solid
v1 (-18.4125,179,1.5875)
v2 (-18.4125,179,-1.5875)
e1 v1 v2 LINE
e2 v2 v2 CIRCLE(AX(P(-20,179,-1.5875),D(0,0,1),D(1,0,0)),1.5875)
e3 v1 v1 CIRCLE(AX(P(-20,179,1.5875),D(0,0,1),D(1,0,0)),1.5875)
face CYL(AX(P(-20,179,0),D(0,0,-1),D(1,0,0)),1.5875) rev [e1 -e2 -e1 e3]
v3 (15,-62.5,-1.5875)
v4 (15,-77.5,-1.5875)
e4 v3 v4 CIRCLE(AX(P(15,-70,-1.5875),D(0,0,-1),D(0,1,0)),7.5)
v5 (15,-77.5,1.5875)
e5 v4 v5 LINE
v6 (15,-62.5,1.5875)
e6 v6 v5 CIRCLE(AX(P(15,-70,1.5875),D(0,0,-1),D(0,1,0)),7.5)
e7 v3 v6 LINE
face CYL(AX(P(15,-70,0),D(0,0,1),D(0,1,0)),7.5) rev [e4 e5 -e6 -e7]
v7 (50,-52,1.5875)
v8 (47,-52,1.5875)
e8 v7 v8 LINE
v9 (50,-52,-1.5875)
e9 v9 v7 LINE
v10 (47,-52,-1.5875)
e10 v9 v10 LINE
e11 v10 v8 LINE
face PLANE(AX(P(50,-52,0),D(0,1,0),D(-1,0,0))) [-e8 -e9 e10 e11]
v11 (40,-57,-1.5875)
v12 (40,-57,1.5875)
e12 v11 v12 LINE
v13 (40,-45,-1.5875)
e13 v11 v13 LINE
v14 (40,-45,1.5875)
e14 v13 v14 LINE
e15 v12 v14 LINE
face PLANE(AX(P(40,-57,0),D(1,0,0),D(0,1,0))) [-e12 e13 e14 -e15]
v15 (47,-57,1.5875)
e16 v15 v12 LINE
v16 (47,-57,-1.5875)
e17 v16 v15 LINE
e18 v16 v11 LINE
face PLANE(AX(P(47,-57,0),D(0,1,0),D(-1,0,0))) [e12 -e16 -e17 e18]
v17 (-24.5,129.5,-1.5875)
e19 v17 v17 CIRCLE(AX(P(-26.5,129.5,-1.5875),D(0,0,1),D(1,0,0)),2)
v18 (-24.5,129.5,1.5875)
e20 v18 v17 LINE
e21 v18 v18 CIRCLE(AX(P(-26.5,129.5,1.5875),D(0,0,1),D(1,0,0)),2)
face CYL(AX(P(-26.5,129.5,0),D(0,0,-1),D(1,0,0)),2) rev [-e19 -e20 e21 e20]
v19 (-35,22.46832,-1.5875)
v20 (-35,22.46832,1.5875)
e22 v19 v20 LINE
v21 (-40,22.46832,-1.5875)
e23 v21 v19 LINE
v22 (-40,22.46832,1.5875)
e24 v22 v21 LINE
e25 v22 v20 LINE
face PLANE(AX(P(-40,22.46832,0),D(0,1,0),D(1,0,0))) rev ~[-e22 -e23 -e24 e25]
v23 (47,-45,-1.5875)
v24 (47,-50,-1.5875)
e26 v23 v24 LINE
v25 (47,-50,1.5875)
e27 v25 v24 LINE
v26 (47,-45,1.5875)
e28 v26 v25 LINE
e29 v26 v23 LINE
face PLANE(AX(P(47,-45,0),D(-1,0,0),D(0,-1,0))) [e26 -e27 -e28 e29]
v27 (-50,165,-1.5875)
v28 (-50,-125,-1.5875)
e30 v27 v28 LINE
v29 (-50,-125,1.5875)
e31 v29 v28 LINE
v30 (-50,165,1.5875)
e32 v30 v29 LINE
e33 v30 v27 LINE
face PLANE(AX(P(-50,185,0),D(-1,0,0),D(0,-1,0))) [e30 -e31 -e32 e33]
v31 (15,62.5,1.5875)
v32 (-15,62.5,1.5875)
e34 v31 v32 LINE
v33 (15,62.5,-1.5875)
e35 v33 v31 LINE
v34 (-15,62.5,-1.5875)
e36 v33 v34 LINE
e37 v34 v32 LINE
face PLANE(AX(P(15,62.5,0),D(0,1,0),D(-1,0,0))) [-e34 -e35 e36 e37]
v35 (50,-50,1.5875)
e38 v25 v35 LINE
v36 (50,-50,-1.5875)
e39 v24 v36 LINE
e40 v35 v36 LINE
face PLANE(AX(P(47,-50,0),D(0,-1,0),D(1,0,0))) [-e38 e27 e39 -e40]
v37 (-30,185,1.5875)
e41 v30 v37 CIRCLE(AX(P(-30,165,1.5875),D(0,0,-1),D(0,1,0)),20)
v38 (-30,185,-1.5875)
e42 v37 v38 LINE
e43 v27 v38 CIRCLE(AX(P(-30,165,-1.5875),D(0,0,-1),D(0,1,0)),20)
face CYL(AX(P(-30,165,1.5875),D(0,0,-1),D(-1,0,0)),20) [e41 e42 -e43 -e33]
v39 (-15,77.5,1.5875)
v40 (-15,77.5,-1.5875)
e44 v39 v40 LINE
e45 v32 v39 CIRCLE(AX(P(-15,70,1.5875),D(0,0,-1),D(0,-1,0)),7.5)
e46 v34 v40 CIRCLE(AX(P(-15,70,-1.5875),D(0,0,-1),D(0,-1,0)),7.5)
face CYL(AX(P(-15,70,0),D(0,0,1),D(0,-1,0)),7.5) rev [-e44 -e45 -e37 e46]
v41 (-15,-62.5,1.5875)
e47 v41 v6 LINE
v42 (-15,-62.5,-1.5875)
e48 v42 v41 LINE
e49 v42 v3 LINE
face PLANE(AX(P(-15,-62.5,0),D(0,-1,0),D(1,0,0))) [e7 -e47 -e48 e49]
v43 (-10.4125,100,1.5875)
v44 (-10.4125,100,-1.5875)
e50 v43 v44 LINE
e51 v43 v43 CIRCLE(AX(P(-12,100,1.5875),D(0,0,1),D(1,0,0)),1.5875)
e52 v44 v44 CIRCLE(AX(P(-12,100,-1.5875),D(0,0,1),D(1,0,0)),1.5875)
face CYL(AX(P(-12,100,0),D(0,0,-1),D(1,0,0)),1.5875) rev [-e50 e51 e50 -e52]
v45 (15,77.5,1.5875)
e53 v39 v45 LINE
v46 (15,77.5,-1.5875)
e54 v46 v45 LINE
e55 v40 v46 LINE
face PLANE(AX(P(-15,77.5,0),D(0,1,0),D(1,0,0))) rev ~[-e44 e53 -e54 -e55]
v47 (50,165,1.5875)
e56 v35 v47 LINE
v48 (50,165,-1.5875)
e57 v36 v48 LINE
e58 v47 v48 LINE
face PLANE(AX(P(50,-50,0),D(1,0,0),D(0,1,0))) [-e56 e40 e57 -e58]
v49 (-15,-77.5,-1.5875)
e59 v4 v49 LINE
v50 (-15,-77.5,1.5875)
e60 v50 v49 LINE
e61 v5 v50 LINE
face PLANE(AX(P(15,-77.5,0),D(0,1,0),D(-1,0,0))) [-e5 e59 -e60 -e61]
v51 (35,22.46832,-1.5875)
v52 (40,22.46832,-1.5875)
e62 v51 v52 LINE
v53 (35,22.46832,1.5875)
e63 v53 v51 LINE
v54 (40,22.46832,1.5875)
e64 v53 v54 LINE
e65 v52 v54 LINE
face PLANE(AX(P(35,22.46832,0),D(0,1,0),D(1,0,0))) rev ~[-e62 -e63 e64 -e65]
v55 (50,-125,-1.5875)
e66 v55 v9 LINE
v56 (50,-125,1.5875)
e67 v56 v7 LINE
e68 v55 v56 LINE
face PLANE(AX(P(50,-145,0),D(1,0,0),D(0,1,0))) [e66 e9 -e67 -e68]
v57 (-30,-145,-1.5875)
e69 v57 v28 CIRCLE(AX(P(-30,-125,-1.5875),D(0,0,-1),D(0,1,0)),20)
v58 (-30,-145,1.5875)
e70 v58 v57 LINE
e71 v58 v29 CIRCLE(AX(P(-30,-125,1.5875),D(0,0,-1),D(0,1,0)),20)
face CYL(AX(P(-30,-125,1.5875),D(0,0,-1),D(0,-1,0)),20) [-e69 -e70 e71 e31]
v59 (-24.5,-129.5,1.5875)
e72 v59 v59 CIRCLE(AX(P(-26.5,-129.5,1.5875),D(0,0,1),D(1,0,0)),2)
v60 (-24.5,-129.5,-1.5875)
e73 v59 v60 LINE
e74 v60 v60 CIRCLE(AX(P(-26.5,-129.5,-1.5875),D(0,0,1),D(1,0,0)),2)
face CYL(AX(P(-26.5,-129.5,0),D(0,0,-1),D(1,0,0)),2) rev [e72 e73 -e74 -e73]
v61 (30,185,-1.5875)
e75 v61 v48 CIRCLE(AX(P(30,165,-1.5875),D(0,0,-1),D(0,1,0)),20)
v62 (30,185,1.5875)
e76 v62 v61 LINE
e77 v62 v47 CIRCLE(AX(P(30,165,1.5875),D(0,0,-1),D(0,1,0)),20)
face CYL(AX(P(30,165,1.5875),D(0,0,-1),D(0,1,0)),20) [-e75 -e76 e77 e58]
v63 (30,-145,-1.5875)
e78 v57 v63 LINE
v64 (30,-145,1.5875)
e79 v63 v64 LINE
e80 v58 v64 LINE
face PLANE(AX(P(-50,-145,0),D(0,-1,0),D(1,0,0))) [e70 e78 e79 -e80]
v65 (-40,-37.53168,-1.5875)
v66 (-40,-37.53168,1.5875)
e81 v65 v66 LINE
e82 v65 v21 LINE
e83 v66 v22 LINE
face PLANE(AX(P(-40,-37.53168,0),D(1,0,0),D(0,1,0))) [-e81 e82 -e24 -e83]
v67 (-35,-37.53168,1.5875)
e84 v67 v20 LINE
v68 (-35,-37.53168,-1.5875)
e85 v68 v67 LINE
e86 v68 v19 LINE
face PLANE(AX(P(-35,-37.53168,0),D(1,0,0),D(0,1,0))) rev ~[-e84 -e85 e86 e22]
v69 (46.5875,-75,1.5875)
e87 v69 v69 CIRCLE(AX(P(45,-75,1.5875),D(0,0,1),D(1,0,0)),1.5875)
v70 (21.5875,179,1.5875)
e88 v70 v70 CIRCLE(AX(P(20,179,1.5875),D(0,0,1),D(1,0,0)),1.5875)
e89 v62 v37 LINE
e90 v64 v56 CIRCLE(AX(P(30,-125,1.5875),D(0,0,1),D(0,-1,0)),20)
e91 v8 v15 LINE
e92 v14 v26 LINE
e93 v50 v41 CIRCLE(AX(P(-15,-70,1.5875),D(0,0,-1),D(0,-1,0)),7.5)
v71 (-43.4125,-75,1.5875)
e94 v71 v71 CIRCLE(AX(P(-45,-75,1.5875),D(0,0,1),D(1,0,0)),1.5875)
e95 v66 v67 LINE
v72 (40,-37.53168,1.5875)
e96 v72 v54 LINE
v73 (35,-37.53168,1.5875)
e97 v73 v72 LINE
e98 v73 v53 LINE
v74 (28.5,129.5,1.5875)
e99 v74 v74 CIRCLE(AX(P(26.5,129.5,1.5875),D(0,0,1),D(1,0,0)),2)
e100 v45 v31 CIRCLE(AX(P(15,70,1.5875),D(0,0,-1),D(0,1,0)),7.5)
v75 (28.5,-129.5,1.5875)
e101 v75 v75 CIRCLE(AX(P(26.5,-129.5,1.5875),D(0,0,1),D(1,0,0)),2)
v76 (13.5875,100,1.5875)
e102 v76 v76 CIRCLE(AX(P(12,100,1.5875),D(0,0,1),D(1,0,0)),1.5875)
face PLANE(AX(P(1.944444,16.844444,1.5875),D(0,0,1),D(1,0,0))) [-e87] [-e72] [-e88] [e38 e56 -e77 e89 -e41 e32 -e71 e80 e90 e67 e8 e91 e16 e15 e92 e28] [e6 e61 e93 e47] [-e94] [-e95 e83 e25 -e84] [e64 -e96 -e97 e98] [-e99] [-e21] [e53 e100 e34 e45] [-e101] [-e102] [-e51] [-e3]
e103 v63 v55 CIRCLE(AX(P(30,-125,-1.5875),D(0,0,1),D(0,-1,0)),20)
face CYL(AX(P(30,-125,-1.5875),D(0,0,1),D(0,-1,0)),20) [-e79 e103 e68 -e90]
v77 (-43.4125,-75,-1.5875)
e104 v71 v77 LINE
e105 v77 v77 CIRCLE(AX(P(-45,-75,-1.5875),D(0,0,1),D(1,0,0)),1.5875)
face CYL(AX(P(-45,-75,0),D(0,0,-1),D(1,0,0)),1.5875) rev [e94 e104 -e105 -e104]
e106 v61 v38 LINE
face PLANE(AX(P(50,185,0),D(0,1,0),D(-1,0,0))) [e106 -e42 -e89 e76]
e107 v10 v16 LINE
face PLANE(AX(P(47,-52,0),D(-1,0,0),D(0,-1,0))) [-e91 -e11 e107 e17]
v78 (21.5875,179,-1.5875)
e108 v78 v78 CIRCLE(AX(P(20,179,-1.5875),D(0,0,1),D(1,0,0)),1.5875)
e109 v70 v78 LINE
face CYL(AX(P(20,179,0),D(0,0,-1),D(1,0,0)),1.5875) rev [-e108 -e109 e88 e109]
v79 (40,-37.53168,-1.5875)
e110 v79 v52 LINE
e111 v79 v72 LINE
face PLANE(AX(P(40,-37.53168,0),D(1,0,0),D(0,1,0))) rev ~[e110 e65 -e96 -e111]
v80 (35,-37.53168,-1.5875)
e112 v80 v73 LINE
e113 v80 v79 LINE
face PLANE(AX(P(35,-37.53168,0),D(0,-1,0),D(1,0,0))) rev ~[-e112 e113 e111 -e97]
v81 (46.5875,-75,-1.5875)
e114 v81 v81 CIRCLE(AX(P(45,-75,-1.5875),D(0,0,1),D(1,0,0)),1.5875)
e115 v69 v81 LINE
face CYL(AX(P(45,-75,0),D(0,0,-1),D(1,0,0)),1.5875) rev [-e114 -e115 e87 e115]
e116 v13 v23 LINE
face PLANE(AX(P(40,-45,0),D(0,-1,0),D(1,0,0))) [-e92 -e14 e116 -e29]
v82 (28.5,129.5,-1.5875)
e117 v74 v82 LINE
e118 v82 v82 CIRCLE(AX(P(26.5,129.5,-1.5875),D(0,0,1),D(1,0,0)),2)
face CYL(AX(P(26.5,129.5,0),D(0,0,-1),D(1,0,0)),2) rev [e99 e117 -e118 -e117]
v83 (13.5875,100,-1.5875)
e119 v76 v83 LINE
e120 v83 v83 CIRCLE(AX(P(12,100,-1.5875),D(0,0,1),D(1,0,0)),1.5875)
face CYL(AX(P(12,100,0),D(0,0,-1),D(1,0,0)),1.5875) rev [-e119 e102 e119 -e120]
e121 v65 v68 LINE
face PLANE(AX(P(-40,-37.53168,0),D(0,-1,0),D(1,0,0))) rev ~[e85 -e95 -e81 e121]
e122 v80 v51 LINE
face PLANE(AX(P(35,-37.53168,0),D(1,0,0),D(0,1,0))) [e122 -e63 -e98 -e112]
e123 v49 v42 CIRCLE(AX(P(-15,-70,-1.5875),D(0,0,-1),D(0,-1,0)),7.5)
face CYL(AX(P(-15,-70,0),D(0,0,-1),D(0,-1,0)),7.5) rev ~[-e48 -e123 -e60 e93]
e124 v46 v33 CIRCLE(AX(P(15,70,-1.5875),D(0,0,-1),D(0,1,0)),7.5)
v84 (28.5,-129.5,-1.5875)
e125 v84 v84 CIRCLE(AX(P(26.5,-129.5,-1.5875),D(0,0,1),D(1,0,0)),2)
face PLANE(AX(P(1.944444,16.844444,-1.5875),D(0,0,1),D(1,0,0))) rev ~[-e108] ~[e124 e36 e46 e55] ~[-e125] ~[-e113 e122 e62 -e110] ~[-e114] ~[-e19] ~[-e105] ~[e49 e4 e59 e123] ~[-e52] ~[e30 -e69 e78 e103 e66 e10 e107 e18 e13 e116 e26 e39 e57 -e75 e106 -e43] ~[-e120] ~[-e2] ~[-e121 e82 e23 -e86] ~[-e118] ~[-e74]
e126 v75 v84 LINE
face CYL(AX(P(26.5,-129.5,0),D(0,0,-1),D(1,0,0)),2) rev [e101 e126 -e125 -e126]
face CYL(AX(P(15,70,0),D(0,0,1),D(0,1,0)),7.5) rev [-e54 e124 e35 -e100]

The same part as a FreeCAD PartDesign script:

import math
import FreeCAD as App
import Part
import Sketcher
from FreeCAD import Vector


def edges_at(feature, points):
    """Names of the edges that pass closest to the given points."""
    edges = feature.Shape.Edges
    near = lambda p: min(range(len(edges)), key=lambda i: edges[i].distToShape(Part.Vertex(*p))[0])
    return sorted({f"Edge{near(p) + 1}" for p in points})


def add_polygon(sketch, points):
    """Adds a closed chain of lines whose ends are joined by coincident constraints."""
    first, n = sketch.GeometryCount, len(points)
    for a, b in zip(points, points[1:] + points[:1]):
        sketch.addGeometry(Part.LineSegment(App.Vector(*a, 0), App.Vector(*b, 0)), False)
    for i in range(n):
        sketch.addConstraint(Sketcher.Constraint("Coincident", first + i, 2, first + (i + 1) % n, 1))

doc = App.newDocument("Part")
params = doc.addObject("Spreadsheet::Sheet", "Params")
for row, (alias, value) in enumerate([
    ("sketch1_diameter", "4 mm"),
    ("sketch1_radius", "7.5 mm"),
    ("sketch1_width", "100 mm"),
    ("sketch1_width2", "3 mm"),
    ("sketch1_width3", "7 mm"),
    ("pad1_length", "3.175 mm"),
    ("fillet_radius", "20 mm"),
], start=1):
    params.set(f"A{row}", alias)
    params.set(f"B{row}", "=" + value)
    params.setAlias(f"B{row}", alias)

body = doc.addObject("PartDesign::Body", "Body")

# Sketch on XY plane
sketch1 = doc.addObject("Sketcher::SketchObject", "Sketch")
body.addObject(sketch1)
sketch1.AttachmentSupport = (doc.XY_Plane, [""])
sketch1.MapMode = "FlatFace"
add_polygon(sketch1, [(-50, -145), (50, -145), (50, -52), (47, -52), (47, -57), (40, -57), (40, -45), (47, -45), (47, -50), (50, -50), (50, 185), (-50, 185)])  # lines 0-11
sketch1.addGeometry(Part.Circle(Vector(-26.5, -129.5, 0), Vector(0, 0, 1), 2), False)  # 12
sketch1.addGeometry(Part.Circle(Vector(-45, -75, 0), Vector(0, 0, 1), 1.6), False)  # 13
add_polygon(sketch1, [(-35, -37.5), (-40, -37.5), (-40, 22.5), (-35, 22.5)])  # lines 14-17
sketch1.addGeometry(Part.ArcOfCircle(Part.Circle(Vector(15, -70, 0), Vector(0, 0, 1), 7.5), math.radians(-90), math.radians(90)), False)  # 18
sketch1.addGeometry(Part.LineSegment(Vector(15, -77.5, 0), Vector(-15, -77.5, 0)), False)  # 19
sketch1.addGeometry(Part.ArcOfCircle(Part.Circle(Vector(-15, -70, 0), Vector(0, 0, 1), 7.5), math.radians(90), math.radians(270)), False)  # 20
sketch1.addGeometry(Part.LineSegment(Vector(-15, -62.5, 0), Vector(15, -62.5, 0)), False)  # 21
sketch1.addGeometry(Part.Circle(Vector(26.5, -129.5, 0), Vector(0, 0, 1), 2), False)  # 22
sketch1.addGeometry(Part.Circle(Vector(45, -75, 0), Vector(0, 0, 1), 1.6), False)  # 23
add_polygon(sketch1, [(40, -37.5), (35, -37.5), (35, 22.5), (40, 22.5)])  # lines 24-27
sketch1.addGeometry(Part.Circle(Vector(-12, 100, 0), Vector(0, 0, 1), 1.6), False)  # 28
sketch1.addGeometry(Part.Circle(Vector(-26.5, 129.5, 0), Vector(0, 0, 1), 2), False)  # 29
sketch1.addGeometry(Part.Circle(Vector(-20, 179, 0), Vector(0, 0, 1), 1.6), False)  # 30
sketch1.addGeometry(Part.LineSegment(Vector(15, 62.5, 0), Vector(-15, 62.5, 0)), False)  # 31
sketch1.addGeometry(Part.ArcOfCircle(Part.Circle(Vector(-15, 70, 0), Vector(0, 0, 1), 7.5), math.radians(90), math.radians(270)), False)  # 32
sketch1.addGeometry(Part.LineSegment(Vector(-15, 77.5, 0), Vector(15, 77.5, 0)), False)  # 33
sketch1.addGeometry(Part.ArcOfCircle(Part.Circle(Vector(15, 70, 0), Vector(0, 0, 1), 7.5), math.radians(-90), math.radians(90)), False)  # 34
sketch1.addGeometry(Part.Circle(Vector(12, 100, 0), Vector(0, 0, 1), 1.6), False)  # 35
sketch1.addGeometry(Part.Circle(Vector(20, 179, 0), Vector(0, 0, 1), 1.6), False)  # 36
sketch1.addGeometry(Part.Circle(Vector(26.5, 129.5, 0), Vector(0, 0, 1), 2), False)  # 37
sketch1.addConstraint([
    Sketcher.Constraint("Tangent", 18, 1, 19, 1),
    Sketcher.Constraint("Tangent", 19, 2, 20, 2),
    Sketcher.Constraint("Tangent", 20, 1, 21, 1),
    Sketcher.Constraint("Tangent", 21, 2, 18, 2),
    Sketcher.Constraint("Tangent", 31, 2, 32, 2),
    Sketcher.Constraint("Tangent", 32, 1, 33, 1),
    Sketcher.Constraint("Tangent", 33, 2, 34, 2),
    Sketcher.Constraint("Tangent", 34, 1, 31, 1),
    Sketcher.Constraint("Horizontal", 0),
    Sketcher.Constraint("Vertical", 1),
    Sketcher.Constraint("Horizontal", 2),
    Sketcher.Constraint("Vertical", 3),
    Sketcher.Constraint("Horizontal", 4),
    Sketcher.Constraint("Vertical", 5),
    Sketcher.Constraint("Horizontal", 6),
    Sketcher.Constraint("Vertical", 7),
    Sketcher.Constraint("Horizontal", 8),
    Sketcher.Constraint("Vertical", 9),
    Sketcher.Constraint("Horizontal", 10),
    Sketcher.Constraint("Vertical", 11),
    Sketcher.Constraint("Horizontal", 14),
    Sketcher.Constraint("Vertical", 15),
    Sketcher.Constraint("Horizontal", 16),
    Sketcher.Constraint("Vertical", 17),
    Sketcher.Constraint("Horizontal", 19),
    Sketcher.Constraint("Horizontal", 21),
    Sketcher.Constraint("Horizontal", 24),
    Sketcher.Constraint("Vertical", 25),
    Sketcher.Constraint("Horizontal", 26),
    Sketcher.Constraint("Vertical", 27),
    Sketcher.Constraint("Horizontal", 31),
    Sketcher.Constraint("Horizontal", 33),
    Sketcher.Constraint("Equal", 12, 22),
    Sketcher.Constraint("Equal", 13, 23),
    Sketcher.Constraint("Equal", 23, 28),
    Sketcher.Constraint("Equal", 22, 29),
    Sketcher.Constraint("Equal", 28, 30),
    Sketcher.Constraint("Equal", 20, 32),
    Sketcher.Constraint("Equal", 30, 35),
    Sketcher.Constraint("Equal", 35, 36),
    Sketcher.Constraint("Equal", 29, 37),
    Sketcher.Constraint("Symmetric", 22, 3, 29, 3, -1, 1),
    Sketcher.Constraint("Symmetric", 18, 3, 32, 3, -1, 1),
    Sketcher.Constraint("Symmetric", 12, 3, 37, 3, -1, 1),
    Sketcher.Constraint("Symmetric", 12, 3, 22, 3, -2),
    Sketcher.Constraint("Symmetric", 13, 3, 23, 3, -2),
    Sketcher.Constraint("Symmetric", 28, 3, 35, 3, -2),
    Sketcher.Constraint("Symmetric", 30, 3, 36, 3, -2),
    Sketcher.Constraint("Symmetric", 17, 2, 24, 2, -2),
    Sketcher.Constraint("Symmetric", 15, 2, 26, 2, -2),
    Sketcher.Constraint("Vertical", 20, 3, 32, 3),
    Sketcher.Constraint("Vertical", 18, 3, 34, 3),
    Sketcher.Constraint("Vertical", 3, 2, 6, 2),
    Sketcher.Constraint("Vertical", 1, 2, 8, 2),
    Sketcher.Constraint("Vertical", 5, 2, 26, 2),
    Sketcher.Constraint("Equal", 26, 3),
    Sketcher.Constraint("Equal", 3, 7),
    Sketcher.Constraint("Diameter", 12, 4.0),
    Sketcher.Constraint("Radius", 18, 7.5),
    Sketcher.Constraint("DistanceX", 0, 1, 0, 2, 100.0),
    Sketcher.Constraint("DistanceX", 2, 2, 2, 1, 3.0),
    Sketcher.Constraint("DistanceX", 4, 2, 4, 1, 7.0),
    Sketcher.Constraint("DistanceX", 14, 2, 14, 1, 5.0),
    Sketcher.Constraint("DistanceX", 19, 2, 19, 1, 30.0),
    Sketcher.Constraint("DistanceY", 1, 1, 1, 2, 93.0),
    Sketcher.Constraint("DistanceY", 5, 1, 5, 2, 12.0),
    Sketcher.Constraint("DistanceY", 9, 1, 9, 2, 235.0),
    Sketcher.Constraint("DistanceY", 15, 1, 15, 2, 60.0),
    Sketcher.Constraint("Diameter", 13, 3.175),
    Sketcher.Constraint("DistanceX", 13, 3, -1, 1, 45.0),
    Sketcher.Constraint("DistanceY", 13, 3, -1, 1, 75.0),
    Sketcher.Constraint("DistanceY", 18, 3, -1, 1, 70.0),
    Sketcher.Constraint("DistanceX", 28, 3, -1, 1, 12.0),
    Sketcher.Constraint("DistanceY", -1, 1, 28, 3, 100.0),
    Sketcher.Constraint("DistanceX", 30, 3, -1, 1, 20.0),
    Sketcher.Constraint("DistanceY", -1, 1, 30, 3, 179.0),
    Sketcher.Constraint("DistanceX", -1, 1, 0, 2, 50.0),
    Sketcher.Constraint("DistanceY", 0, 2, -1, 1, 145.0),
    Sketcher.Constraint("DistanceX", 12, 3, 22, 3, 53.0),
    Sketcher.Constraint("DistanceY", 12, 3, -1, 1, 129.5),
    Sketcher.Constraint("DistanceY", 14, 2, -1, 1, 37.53168),
])
sketch1.setExpression("Constraints[77]", "Params.sketch1_diameter")
sketch1.setExpression("Constraints[78]", "Params.sketch1_radius")
sketch1.setExpression("Constraints[79]", "Params.sketch1_width")
sketch1.setExpression("Constraints[80]", "Params.sketch1_width2")
sketch1.setExpression("Constraints[81]", "Params.sketch1_width3")
pad1 = doc.addObject("PartDesign::Pad", "Pad")
body.addObject(pad1)
pad1.Profile = sketch1
pad1.setExpression("Length", "Params.pad1_length")
pad1.Midplane = True
doc.recompute()

fillet = doc.addObject("PartDesign::Fillet", "Fillet")
body.addObject(fillet)
fillet.Base = (pad1, edges_at(pad1, [
    (-50, 185, 0),
    (50, 185, 0),
    (-50, -145, 0),
    (50, -145, 0),
]))
fillet.setExpression("Radius", "Params.fillet_radius")

doc.recompute()
